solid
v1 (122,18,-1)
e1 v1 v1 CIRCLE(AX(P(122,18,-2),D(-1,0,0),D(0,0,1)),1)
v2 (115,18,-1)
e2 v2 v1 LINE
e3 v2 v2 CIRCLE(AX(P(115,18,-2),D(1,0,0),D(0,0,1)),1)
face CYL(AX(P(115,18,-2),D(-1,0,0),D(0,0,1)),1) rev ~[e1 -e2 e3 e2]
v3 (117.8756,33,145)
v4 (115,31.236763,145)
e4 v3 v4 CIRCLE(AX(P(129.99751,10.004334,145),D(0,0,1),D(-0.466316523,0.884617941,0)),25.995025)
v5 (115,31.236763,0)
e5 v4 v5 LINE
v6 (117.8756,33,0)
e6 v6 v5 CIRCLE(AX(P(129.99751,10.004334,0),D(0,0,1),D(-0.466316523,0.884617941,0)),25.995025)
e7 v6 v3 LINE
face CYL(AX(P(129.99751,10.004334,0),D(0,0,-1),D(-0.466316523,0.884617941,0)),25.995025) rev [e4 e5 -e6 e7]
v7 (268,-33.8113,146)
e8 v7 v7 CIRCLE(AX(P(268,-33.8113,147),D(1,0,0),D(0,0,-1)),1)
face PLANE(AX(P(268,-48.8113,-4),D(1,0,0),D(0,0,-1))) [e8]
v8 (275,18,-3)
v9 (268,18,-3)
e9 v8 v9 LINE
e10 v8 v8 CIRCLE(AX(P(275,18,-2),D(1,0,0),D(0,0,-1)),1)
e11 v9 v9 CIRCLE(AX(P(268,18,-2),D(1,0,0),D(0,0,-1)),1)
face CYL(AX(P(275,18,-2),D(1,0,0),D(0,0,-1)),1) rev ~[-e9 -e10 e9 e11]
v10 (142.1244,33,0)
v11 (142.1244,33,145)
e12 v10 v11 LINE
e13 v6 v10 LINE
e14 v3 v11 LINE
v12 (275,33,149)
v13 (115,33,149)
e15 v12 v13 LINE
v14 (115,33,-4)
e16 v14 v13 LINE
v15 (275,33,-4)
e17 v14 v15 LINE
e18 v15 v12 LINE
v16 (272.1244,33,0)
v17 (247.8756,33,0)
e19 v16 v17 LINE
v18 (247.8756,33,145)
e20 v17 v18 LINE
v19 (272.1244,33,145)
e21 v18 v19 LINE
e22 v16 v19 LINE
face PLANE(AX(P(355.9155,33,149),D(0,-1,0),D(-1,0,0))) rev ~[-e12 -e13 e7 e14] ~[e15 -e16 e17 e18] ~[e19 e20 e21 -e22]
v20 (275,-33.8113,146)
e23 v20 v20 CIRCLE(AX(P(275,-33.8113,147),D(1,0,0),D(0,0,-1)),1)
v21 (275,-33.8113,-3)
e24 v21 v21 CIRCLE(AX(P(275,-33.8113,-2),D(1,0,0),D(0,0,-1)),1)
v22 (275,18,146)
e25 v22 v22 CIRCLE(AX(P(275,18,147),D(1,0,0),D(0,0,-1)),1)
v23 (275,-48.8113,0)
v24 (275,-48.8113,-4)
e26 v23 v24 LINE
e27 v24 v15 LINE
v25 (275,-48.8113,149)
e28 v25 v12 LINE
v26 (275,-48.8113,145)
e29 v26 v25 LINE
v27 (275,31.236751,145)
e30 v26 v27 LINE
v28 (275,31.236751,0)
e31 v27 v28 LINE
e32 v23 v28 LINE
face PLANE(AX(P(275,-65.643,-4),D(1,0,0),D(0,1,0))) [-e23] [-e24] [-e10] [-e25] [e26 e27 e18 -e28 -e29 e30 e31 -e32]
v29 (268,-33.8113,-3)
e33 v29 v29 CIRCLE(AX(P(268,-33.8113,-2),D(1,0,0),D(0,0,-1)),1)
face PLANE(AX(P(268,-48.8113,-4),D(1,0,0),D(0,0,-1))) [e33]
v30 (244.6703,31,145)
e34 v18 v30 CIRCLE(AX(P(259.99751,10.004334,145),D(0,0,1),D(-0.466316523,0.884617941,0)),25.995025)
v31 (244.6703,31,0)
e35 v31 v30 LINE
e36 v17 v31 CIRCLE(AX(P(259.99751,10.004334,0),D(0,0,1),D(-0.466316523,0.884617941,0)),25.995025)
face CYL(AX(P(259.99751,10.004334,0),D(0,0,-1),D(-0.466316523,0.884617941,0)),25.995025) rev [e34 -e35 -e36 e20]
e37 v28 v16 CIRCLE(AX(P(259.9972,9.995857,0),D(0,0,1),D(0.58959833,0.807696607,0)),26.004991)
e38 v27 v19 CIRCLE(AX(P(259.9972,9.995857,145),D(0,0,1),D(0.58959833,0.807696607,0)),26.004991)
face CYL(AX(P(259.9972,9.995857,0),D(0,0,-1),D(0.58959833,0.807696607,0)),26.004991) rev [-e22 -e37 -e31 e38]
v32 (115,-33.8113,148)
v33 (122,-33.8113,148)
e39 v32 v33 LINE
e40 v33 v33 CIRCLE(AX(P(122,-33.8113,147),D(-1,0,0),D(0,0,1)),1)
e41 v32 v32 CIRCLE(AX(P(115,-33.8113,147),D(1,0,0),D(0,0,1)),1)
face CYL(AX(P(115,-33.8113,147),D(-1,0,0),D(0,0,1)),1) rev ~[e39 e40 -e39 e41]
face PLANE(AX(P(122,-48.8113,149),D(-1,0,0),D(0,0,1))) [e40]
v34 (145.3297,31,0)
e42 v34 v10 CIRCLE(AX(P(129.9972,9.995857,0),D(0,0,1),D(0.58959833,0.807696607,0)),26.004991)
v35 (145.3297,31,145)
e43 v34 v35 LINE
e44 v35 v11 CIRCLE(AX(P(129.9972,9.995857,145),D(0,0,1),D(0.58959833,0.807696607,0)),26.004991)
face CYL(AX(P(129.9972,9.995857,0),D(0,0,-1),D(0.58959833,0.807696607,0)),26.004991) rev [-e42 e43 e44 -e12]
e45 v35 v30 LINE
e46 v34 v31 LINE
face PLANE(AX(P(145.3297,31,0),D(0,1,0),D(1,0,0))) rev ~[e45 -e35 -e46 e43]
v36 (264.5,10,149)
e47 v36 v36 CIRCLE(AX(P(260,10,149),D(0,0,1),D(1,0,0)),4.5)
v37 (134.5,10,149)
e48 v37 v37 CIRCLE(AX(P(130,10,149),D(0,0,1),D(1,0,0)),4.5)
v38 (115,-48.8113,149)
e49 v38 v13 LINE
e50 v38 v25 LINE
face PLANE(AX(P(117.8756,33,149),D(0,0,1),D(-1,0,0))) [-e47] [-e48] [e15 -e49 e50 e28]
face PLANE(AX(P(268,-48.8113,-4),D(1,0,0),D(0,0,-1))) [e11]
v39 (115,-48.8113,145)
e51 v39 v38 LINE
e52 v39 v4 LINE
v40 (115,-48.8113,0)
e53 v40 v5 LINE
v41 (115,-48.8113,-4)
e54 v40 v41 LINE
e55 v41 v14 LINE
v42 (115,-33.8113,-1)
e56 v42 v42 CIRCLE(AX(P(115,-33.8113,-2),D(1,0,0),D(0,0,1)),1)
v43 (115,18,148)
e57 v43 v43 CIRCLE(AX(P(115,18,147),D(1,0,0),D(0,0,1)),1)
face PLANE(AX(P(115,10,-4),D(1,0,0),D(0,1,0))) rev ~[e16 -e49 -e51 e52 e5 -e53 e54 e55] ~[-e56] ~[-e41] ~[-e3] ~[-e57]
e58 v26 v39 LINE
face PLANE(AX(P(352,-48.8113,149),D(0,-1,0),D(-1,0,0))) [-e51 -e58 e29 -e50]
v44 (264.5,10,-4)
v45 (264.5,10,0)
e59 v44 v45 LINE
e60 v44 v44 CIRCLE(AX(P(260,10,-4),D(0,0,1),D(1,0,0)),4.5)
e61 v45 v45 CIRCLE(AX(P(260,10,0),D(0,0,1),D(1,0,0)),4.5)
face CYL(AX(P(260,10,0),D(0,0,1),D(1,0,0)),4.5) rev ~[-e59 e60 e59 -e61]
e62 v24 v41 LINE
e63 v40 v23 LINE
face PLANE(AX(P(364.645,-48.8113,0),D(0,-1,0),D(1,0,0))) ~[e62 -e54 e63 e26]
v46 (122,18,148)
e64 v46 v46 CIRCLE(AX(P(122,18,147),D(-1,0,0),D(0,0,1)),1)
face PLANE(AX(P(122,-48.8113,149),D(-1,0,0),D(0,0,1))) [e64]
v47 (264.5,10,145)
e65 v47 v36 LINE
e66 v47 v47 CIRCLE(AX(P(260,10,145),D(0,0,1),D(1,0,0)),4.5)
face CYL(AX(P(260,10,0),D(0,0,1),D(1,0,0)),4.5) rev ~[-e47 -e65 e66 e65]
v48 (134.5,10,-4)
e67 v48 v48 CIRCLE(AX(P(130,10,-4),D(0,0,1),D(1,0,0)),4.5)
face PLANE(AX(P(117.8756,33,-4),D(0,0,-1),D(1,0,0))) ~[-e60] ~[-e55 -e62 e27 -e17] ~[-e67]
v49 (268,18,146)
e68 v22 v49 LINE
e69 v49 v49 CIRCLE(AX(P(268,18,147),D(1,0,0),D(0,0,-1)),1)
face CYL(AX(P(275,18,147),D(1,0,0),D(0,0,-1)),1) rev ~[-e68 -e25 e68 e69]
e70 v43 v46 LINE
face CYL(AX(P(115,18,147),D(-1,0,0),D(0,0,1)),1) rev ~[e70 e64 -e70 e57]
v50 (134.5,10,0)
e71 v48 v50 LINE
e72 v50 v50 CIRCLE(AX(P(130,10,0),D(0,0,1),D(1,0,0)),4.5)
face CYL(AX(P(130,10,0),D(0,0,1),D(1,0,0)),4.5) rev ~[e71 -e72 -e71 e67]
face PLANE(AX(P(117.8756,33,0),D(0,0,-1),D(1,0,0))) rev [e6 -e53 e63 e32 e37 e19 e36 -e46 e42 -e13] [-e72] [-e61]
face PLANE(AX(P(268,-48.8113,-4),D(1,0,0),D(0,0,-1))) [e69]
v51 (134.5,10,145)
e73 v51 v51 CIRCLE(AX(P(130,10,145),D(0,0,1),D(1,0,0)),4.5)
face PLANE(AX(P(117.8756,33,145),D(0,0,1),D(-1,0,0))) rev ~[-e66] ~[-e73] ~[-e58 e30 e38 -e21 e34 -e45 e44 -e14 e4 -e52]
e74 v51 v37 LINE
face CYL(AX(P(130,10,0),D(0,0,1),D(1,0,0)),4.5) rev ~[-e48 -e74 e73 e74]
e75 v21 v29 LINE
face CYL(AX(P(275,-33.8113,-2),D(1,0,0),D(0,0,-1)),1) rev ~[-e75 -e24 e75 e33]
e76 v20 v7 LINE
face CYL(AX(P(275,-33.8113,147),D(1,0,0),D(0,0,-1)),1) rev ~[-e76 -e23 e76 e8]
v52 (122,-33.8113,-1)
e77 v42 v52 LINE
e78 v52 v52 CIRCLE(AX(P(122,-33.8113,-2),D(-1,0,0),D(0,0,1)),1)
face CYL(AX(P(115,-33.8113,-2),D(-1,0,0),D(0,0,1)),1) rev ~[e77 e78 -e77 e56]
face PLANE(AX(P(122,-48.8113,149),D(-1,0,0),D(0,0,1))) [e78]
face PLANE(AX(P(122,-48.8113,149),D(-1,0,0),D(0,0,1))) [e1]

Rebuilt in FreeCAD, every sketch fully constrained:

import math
import FreeCAD as App
import Part
import Sketcher
from FreeCAD import Vector
Q = App.Units.Quantity


def add_polygon(sketch, points):
    """Adds a closed chain of lines whose ends are joined by coincident constraints."""
    first, n = sketch.GeometryCount, len(points)
    for a, b in zip(points, points[1:] + points[:1]):
        sketch.addGeometry(Part.LineSegment(App.Vector(*a, 0), App.Vector(*b, 0)), False)
    for i in range(n):
        sketch.addConstraint(Sketcher.Constraint("Coincident", first + i, 2, first + (i + 1) % n, 1))

doc = App.newDocument("Part")
params = doc.addObject("Spreadsheet::Sheet", "Params")
for row, (alias, value) in enumerate([
    ("sketch1_height", "2 mm"),
    ("pad1_length", "145 mm"),
    ("sketch2_radius", "4.5 mm"),
    ("sketch2_height", "16.5 mm"),
    ("sketch2_width", "35.1 mm"),
    ("sketch2_height2", "18.5 mm"),
    ("pad2_length", "4 mm"),
    ("sketch3_diameter", "9 mm"),
    ("pocket1_length", "10000 mm"),
    ("pocket2_length", "1000 mm"),
    ("sketch5_radius", "14.5 mm"),
    ("sketch5_width", "35.1 mm"),
    ("pocket3_length", "17 mm"),
    ("sketch6_diameter", "9 mm"),
    ("pocket4_length", "17 mm"),
    ("sketch7_width", "2 mm"),
    ("pad3_length", "17 mm"),
    ("sketch8_diameter", "9 mm"),
    ("sketch8_radius", "14.5 mm"),
    ("sketch8_width", "2 mm"),
    ("sketch8_width2", "35.1 mm"),
    ("sketch8_height", "16.5 mm"),
    ("pad4_length", "4 mm"),
    ("sketch9_width", "10 mm"),
    ("sketch9_height", "29 mm"),
    ("pad5_length", "14.44 mm"),
    ("sketch10_width", "10 mm"),
    ("sketch10_height", "29 mm"),
    ("pad6_length", "14.44 mm"),
    ("sketch11_diameter", "5 mm"),
    ("pocket6_length", "682 mm"),
    ("sketch13_diameter", "2 mm"),
    ("pocket7_length", "7 mm"),
    ("sketch14_diameter", "2 mm"),
    ("pocket8_length", "7 mm"),
], start=1):
    params.set(f"A{row}", alias)
    params.set(f"B{row}", "=" + value)
    params.setAlias(f"B{row}", alias)

body = doc.addObject("PartDesign::Body", "Body")
body.AllowCompound = True

# Sketch on XY plane
sketch1 = body.newObject("Sketcher::SketchObject", "Sketch")
sketch1.AttachmentSupport = (doc.getObject("XY_Plane"), [""])
sketch1.MapMode = "FlatFace"
sketch1.addGeometry(Part.ArcOfCircle(Part.Circle(Vector(129.99751, 10.004334, 0), Vector(0, 0, 1), 25.995025), math.radians(117.795458), math.radians(126.13011)), False)
sketch1.addGeometry(Part.LineSegment(Vector(117.8756, 33, 0), Vector(31.8551, 33, 0)), False)
sketch1.addGeometry(Part.LineSegment(Vector(31.8551, 33, 0), Vector(31.8551, 31, 0)), False)
sketch1.addGeometry(Part.LineSegment(Vector(31.8551, 31, 0), Vector(114.6703, 31, 0)), False)
sketch1.addGeometry(Part.ArcOfCircle(Part.Circle(Vector(389.999447, 0.001169, 0), Vector(0, 0, 1), 35.99871), math.radians(113.556409), math.radians(120.558613)), False)
sketch1.addGeometry(Part.LineSegment(Vector(375.6125, 33, 0), Vector(272.1244, 33, 0)), False)
sketch1.addGeometry(Part.ArcOfCircle(Part.Circle(Vector(259.9972, 9.995857, 0), Vector(0, 0, 1), 26.004991), math.radians(53.87149), math.radians(62.202942)), False)
sketch1.addGeometry(Part.LineSegment(Vector(275.3297, 31, 0), Vector(371.697, 31, 0)), False)
sketch1.addGeometry(Part.ArcOfCircle(Part.Circle(Vector(259.99751, 10.004334, 0), Vector(0, 0, 1), 25.995025), math.radians(117.795458), math.radians(126.13011)), False)
sketch1.addGeometry(Part.LineSegment(Vector(247.8756, 33, 0), Vector(142.1244, 33, 0)), False)
sketch1.addGeometry(Part.ArcOfCircle(Part.Circle(Vector(129.9972, 9.995857, 0), Vector(0, 0, 1), 26.004991), math.radians(53.87149), math.radians(62.202942)), False)
sketch1.addGeometry(Part.LineSegment(Vector(145.3297, 31, 0), Vector(244.6703, 31, 0)), False)
sketch1.addConstraint(Sketcher.Constraint("Coincident", 0, 1, 1, 1))
sketch1.addConstraint(Sketcher.Constraint("Coincident", 1, 2, 2, 1))
sketch1.addConstraint(Sketcher.Constraint("Coincident", 2, 2, 3, 1))
sketch1.addConstraint(Sketcher.Constraint("Coincident", 3, 2, 0, 2))
sketch1.addConstraint(Sketcher.Constraint("Coincident", 4, 1, 5, 1))
sketch1.addConstraint(Sketcher.Constraint("Coincident", 5, 2, 6, 2))
sketch1.addConstraint(Sketcher.Constraint("Coincident", 6, 1, 7, 1))
sketch1.addConstraint(Sketcher.Constraint("Coincident", 7, 2, 4, 2))
sketch1.addConstraint(Sketcher.Constraint("Coincident", 8, 1, 9, 1))
sketch1.addConstraint(Sketcher.Constraint("Coincident", 9, 2, 10, 2))
sketch1.addConstraint(Sketcher.Constraint("Coincident", 10, 1, 11, 1))
sketch1.addConstraint(Sketcher.Constraint("Coincident", 11, 2, 8, 2))
sketch1.addConstraint(Sketcher.Constraint("Horizontal", 1))
sketch1.addConstraint(Sketcher.Constraint("Vertical", 2))
sketch1.addConstraint(Sketcher.Constraint("Horizontal", 3))
sketch1.addConstraint(Sketcher.Constraint("Horizontal", 5))
sketch1.addConstraint(Sketcher.Constraint("Horizontal", 7))
sketch1.addConstraint(Sketcher.Constraint("Horizontal", 9))
sketch1.addConstraint(Sketcher.Constraint("Horizontal", 11))
sketch1.addConstraint(Sketcher.Constraint("Equal", 0, 8))
sketch1.addConstraint(Sketcher.Constraint("Equal", 6, 10))
sketch1.addConstraint(Sketcher.Constraint("Horizontal", 0, 3, 8, 3))
sketch1.addConstraint(Sketcher.Constraint("Horizontal", 6, 3, 10, 3))
sketch1.addConstraint(Sketcher.Constraint("Horizontal", 1, 2, 4, 1))
sketch1.addConstraint(Sketcher.Constraint("Horizontal", 3, 2, 6, 1))
sketch1.addConstraint(Sketcher.Constraint("Horizontal", 5, 2, 8, 1))
sketch1.addConstraint(Sketcher.Constraint("Horizontal", 7, 2, 10, 1))
sketch1.addConstraint(Sketcher.Constraint("DistanceY", 2, 2, 2, 1, Q("2 mm")))
sketch1.addConstraint(Sketcher.Constraint("DistanceX", 0, 3, 8, 3, Q("130 mm")))
sketch1.addConstraint(Sketcher.Constraint("DistanceX", 10, 3, 6, 3, Q("130 mm")))
sketch1.addConstraint(Sketcher.Constraint("DistanceY", -1, 1, 0, 1, Q("33 mm")))
sketch1.addConstraint(Sketcher.Constraint("Radius", 0, Q("25.995 mm")))
sketch1.addConstraint(Sketcher.Constraint("Radius", 6, Q("26.005 mm")))
sketch1.addConstraint(Sketcher.Constraint("DistanceX", -1, 1, 4, 3, Q("389.9994 mm")))
sketch1.addConstraint(Sketcher.Constraint("Radius", 4, Q("35.9987 mm")))
sketch1.addConstraint(Sketcher.Constraint("DistanceX", 0, 3, 6, 3, Q("129.9997 mm")))
sketch1.addConstraint(Sketcher.Constraint("DistanceX", 5, 2, 5, 1, Q("103.488 mm")))
sketch1.addConstraint(Sketcher.Constraint("DistanceX", 1, 2, 1, 1, Q("86.0205 mm")))
sketch1.addConstraint(Sketcher.Constraint("DistanceX", 3, 1, 3, 2, Q("82.8152 mm")))
sketch1.addConstraint(Sketcher.Constraint("DistanceX", 7, 1, 7, 2, Q("96.3673 mm")))
sketch1.addConstraint(Sketcher.Constraint("DistanceX", 9, 2, 9, 1, Q("105.7512 mm")))
sketch1.setExpression("Constraints[27]", "Params.sketch1_height")
pad1 = body.newObject("PartDesign::Pad", "Pad")
pad1.Profile = sketch1
pad1.setExpression("Length", "Params.pad1_length")

# Sketch on XY plane
sketch2 = body.newObject("Sketcher::SketchObject", "Sketch001")
sketch2.AttachmentSupport = (doc.getObject("XY_Plane"), [""])
sketch2.MapMode = "FlatFace"
sketch2.AttachmentOffset = App.Placement(Vector(0, 0, 145), App.Rotation())
sketch2.addGeometry(Part.LineSegment(Vector(31.8551, 14.5, 0), Vector(-15.8903, 14.5, 0)), False)
sketch2.addGeometry(Part.ArcOfCircle(Part.Circle(Vector(-15.8903, 0, 0), Vector(0, 0, 1), 14.5), math.radians(90), math.radians(270)), False)
sketch2.addGeometry(Part.LineSegment(Vector(-15.8903, -14.5, 0), Vector(19.2097, -14.5, 0)), False)
sketch2.addGeometry(Part.LineSegment(Vector(19.2097, -14.5, 0), Vector(19.2097, -48.8113, 0)), False)
sketch2.addGeometry(Part.LineSegment(Vector(19.2097, -48.8113, 0), Vector(364.645, -48.8113, 0)), False)
sketch2.addGeometry(Part.LineSegment(Vector(364.645, -48.8113, 0), Vector(364.645, -14.5, 0)), False)
sketch2.addGeometry(Part.LineSegment(Vector(364.645, -14.5, 0), Vector(399.745, -14.5, 0)), False)
sketch2.addGeometry(Part.ArcOfCircle(Part.Circle(Vector(399.745, 0, 0), Vector(0, 0, 1), 14.5), math.radians(-90), math.radians(90)), False)
sketch2.addGeometry(Part.LineSegment(Vector(399.745, 14.5, 0), Vector(352, 14.5, 0)), False)
sketch2.addGeometry(Part.LineSegment(Vector(352, 14.5, 0), Vector(352, 31, 0)), False)
sketch2.addGeometry(Part.LineSegment(Vector(352, 31, 0), Vector(355.9155, 33, 0)), False)
sketch2.addGeometry(Part.LineSegment(Vector(355.9155, 33, 0), Vector(31.8551, 33, 0)), False)
sketch2.addGeometry(Part.LineSegment(Vector(31.8551, 33, 0), Vector(31.8551, 14.5, 0)), False)
sketch2.addGeometry(Part.LineSegment(Vector(19.2097, -4.5, 0), Vector(-15.8903, -4.5, 0)), False)
sketch2.addGeometry(Part.ArcOfCircle(Part.Circle(Vector(-15.8903, 0, 0), Vector(0, 0, 1), 4.5), math.radians(90), math.radians(270)), False)
sketch2.addGeometry(Part.LineSegment(Vector(-15.8903, 4.5, 0), Vector(19.2097, 4.5, 0)), False)
sketch2.addGeometry(Part.ArcOfCircle(Part.Circle(Vector(19.2097, 0, 0), Vector(0, 0, 1), 4.5), math.radians(-90), math.radians(90)), False)
sketch2.addConstraint(Sketcher.Constraint("Tangent", 0, 2, 1, 1))
sketch2.addConstraint(Sketcher.Constraint("Tangent", 1, 2, 2, 1))
sketch2.addConstraint(Sketcher.Constraint("Coincident", 2, 2, 3, 1))
sketch2.addConstraint(Sketcher.Constraint("Coincident", 3, 2, 4, 1))
sketch2.addConstraint(Sketcher.Constraint("Coincident", 4, 2, 5, 1))
sketch2.addConstraint(Sketcher.Constraint("Coincident", 5, 2, 6, 1))
sketch2.addConstraint(Sketcher.Constraint("Tangent", 6, 2, 7, 1))
sketch2.addConstraint(Sketcher.Constraint("Tangent", 7, 2, 8, 1))
sketch2.addConstraint(Sketcher.Constraint("Coincident", 8, 2, 9, 1))
sketch2.addConstraint(Sketcher.Constraint("Coincident", 9, 2, 10, 1))
sketch2.addConstraint(Sketcher.Constraint("Coincident", 10, 2, 11, 1))
sketch2.addConstraint(Sketcher.Constraint("Coincident", 11, 2, 12, 1))
sketch2.addConstraint(Sketcher.Constraint("Coincident", 12, 2, 0, 1))
sketch2.addConstraint(Sketcher.Constraint("Tangent", 13, 2, 14, 2))
sketch2.addConstraint(Sketcher.Constraint("Tangent", 14, 1, 15, 1))
sketch2.addConstraint(Sketcher.Constraint("Tangent", 15, 2, 16, 2))
sketch2.addConstraint(Sketcher.Constraint("Tangent", 16, 1, 13, 1))
sketch2.addConstraint(Sketcher.Constraint("Horizontal", 0))
sketch2.addConstraint(Sketcher.Constraint("Horizontal", 2))
sketch2.addConstraint(Sketcher.Constraint("Vertical", 3))
sketch2.addConstraint(Sketcher.Constraint("Horizontal", 4))
sketch2.addConstraint(Sketcher.Constraint("Vertical", 5))
sketch2.addConstraint(Sketcher.Constraint("Horizontal", 6))
sketch2.addConstraint(Sketcher.Constraint("Horizontal", 8))
sketch2.addConstraint(Sketcher.Constraint("Vertical", 9))
sketch2.addConstraint(Sketcher.Constraint("Horizontal", 11))
sketch2.addConstraint(Sketcher.Constraint("Vertical", 12))
sketch2.addConstraint(Sketcher.Constraint("Horizontal", 13))
sketch2.addConstraint(Sketcher.Constraint("Horizontal", 15))
sketch2.addConstraint(Sketcher.Constraint("Coincident", 14, 3, 1, 3))
sketch2.addConstraint(Sketcher.Constraint("Equal", 1, 7))
sketch2.addConstraint(Sketcher.Constraint("PointOnObject", 1, 3, -1))
sketch2.addConstraint(Sketcher.Constraint("PointOnObject", 7, 3, -1))
sketch2.addConstraint(Sketcher.Constraint("Vertical", 16, 3, 2, 2))
sketch2.addConstraint(Sketcher.Constraint("Equal", 2, 6))
sketch2.addConstraint(Sketcher.Constraint("Radius", 14, Q("4.5 mm")))
sketch2.addConstraint(Sketcher.Constraint("DistanceY", 9, 1, 9, 2, Q("16.5 mm")))
sketch2.addConstraint(Sketcher.Constraint("DistanceY", 1, 2, 13, 2, Q("10 mm")))
sketch2.addConstraint(Sketcher.Constraint("DistanceX", 8, 2, 8, 1, Q("47.745 mm")))
sketch2.addConstraint(Sketcher.Constraint("DistanceX", 0, 2, 0, 1, Q("47.7454 mm")))
sketch2.addConstraint(Sketcher.Constraint("DistanceX", 2, 1, 2, 2, Q("35.1 mm")))
sketch2.addConstraint(Sketcher.Constraint("DistanceY", 12, 2, 12, 1, Q("18.5 mm")))
sketch2.addConstraint(Sketcher.Constraint("DistanceX", -1, 1, 8, 2, Q("352 mm")))
sketch2.addConstraint(Sketcher.Constraint("DistanceX", 4, 1, 4, 2, Q("345.4353 mm")))
sketch2.addConstraint(Sketcher.Constraint("DistanceX", 11, 2, 11, 1, Q("324.0604 mm")))
sketch2.addConstraint(Sketcher.Constraint("DistanceY", 3, 2, 3, 1, Q("34.3113 mm")))
sketch2.setExpression("Constraints[35]", "Params.sketch2_radius")
sketch2.setExpression("Constraints[36]", "Params.sketch2_height")
sketch2.setExpression("Constraints[40]", "Params.sketch2_width")
sketch2.setExpression("Constraints[41]", "Params.sketch2_height2")
pad2 = body.newObject("PartDesign::Pad", "Pad001")
pad2.Profile = sketch2
pad2.setExpression("Length", "Params.pad2_length")
doc.recompute()

datumplane = body.newObject("PartDesign::Plane", "DatumPlane")
datumplane.AttachmentSupport = (doc.getObject("XY_Plane"), [""])
datumplane.MapMode = "FlatFace"
datumplane.AttachmentOffset = App.Placement(Vector(0, 0, 72.5), App.Rotation())
mirrored = body.newObject("PartDesign::Mirrored", "Mirrored")
mirrored.Originals = [pad2]
mirrored.MirrorPlane = (datumplane, [""])
body.Tip = mirrored

# Sketch on XY plane
sketch3 = body.newObject("Sketcher::SketchObject", "Sketch002")
sketch3.AttachmentSupport = (doc.getObject("XY_Plane"), [""])
sketch3.MapMode = "FlatFace"
sketch3.addGeometry(Part.Circle(Vector(130, 10, 0), Vector(0, 0, 1), 4.5), False)
sketch3.addGeometry(Part.Circle(Vector(260, 10, 0), Vector(0, 0, 1), 4.5), False)
sketch3.addConstraint(Sketcher.Constraint("Equal", 0, 1))
sketch3.addConstraint(Sketcher.Constraint("Horizontal", 0, 3, 1, 3))
sketch3.addConstraint(Sketcher.Constraint("Diameter", 0, Q("9 mm")))
sketch3.addConstraint(Sketcher.Constraint("DistanceX", -1, 1, 0, 3, Q("130 mm")))
sketch3.addConstraint(Sketcher.Constraint("DistanceX", -1, 1, 1, 3, Q("260 mm")))
sketch3.addConstraint(Sketcher.Constraint("DistanceY", -1, 1, 0, 3, Q("10 mm")))
sketch3.setExpression("Constraints[2]", "Params.sketch3_diameter")
pocket1 = body.newObject("PartDesign::Pocket", "Pocket")
pocket1.Profile = sketch3
pocket1.setExpression("Length", "Params.pocket1_length")
pocket1.Midplane = True

# Sketch on XY plane
sketch4 = body.newObject("Sketcher::SketchObject", "Sketch003")
sketch4.AttachmentSupport = (doc.getObject("XY_Plane"), [""])
sketch4.MapMode = "FlatFace"
sketch4.AttachmentOffset = App.Placement(Vector(0, 0, 145), App.Rotation())
sketch4.addGeometry(Part.LineSegment(Vector(355.9155, 33, 0), Vector(352, 31, 0)), False)
sketch4.addGeometry(Part.LineSegment(Vector(352, 31, 0), Vector(371.697, 31, 0)), False)
sketch4.addGeometry(Part.ArcOfCircle(Part.Circle(Vector(389.999447, 0.001169, 0), Vector(0, 0, 1), 35.99871), math.radians(113.556409), math.radians(120.558613)), False)
sketch4.addGeometry(Part.LineSegment(Vector(375.6125, 33, 0), Vector(355.9155, 33, 0)), False)
sketch4.addConstraint(Sketcher.Constraint("Coincident", 0, 2, 1, 1))
sketch4.addConstraint(Sketcher.Constraint("Coincident", 1, 2, 2, 2))
sketch4.addConstraint(Sketcher.Constraint("Coincident", 2, 1, 3, 1))
sketch4.addConstraint(Sketcher.Constraint("Coincident", 3, 2, 0, 1))
sketch4.addConstraint(Sketcher.Constraint("Horizontal", 1))
sketch4.addConstraint(Sketcher.Constraint("Horizontal", 3))
sketch4.addConstraint(Sketcher.Constraint("Equal", 1, 3))
sketch4.addConstraint(Sketcher.Constraint("DistanceX", -1, 1, 0, 2, Q("352 mm")))
sketch4.addConstraint(Sketcher.Constraint("DistanceY", -1, 1, 0, 2, Q("31 mm")))
sketch4.addConstraint(Sketcher.Constraint("DistanceY", -1, 1, 2, 1, Q("33 mm")))
sketch4.addConstraint(Sketcher.Constraint("Radius", 2, Q("35.9987 mm")))
sketch4.addConstraint(Sketcher.Constraint("DistanceX", 1, 1, 1, 2, Q("19.697 mm")))
sketch4.addConstraint(Sketcher.Constraint("DistanceX", 2, 1, 2, 3, Q("14.387 mm")))
pocket2 = body.newObject("PartDesign::Pocket", "Pocket001")
pocket2.Profile = sketch4
pocket2.setExpression("Length", "Params.pocket2_length")
pocket2.Midplane = True

# Sketch on XY plane
sketch5 = body.newObject("Sketcher::SketchObject", "Sketch004")
sketch5.AttachmentSupport = (doc.getObject("XY_Plane"), [""])
sketch5.MapMode = "FlatFace"
sketch5.AttachmentOffset = App.Placement(Vector(0, 0, 149), App.Rotation())
sketch5.addGeometry(Part.ArcOfCircle(Part.Circle(Vector(399.745, 0, 0), Vector(0, 0, 1), 14.5), math.radians(-90), math.radians(90)), False)
sketch5.addGeometry(Part.LineSegment(Vector(399.745, 14.5, 0), Vector(352, 14.5, 0)), False)
sketch5.addGeometry(Part.LineSegment(Vector(352, 14.5, 0), Vector(352, -48.8113, 0)), False)
sketch5.addGeometry(Part.LineSegment(Vector(352, -48.8113, 0), Vector(364.645, -48.8113, 0)), False)
sketch5.addGeometry(Part.LineSegment(Vector(364.645, -48.8113, 0), Vector(364.645, -14.5, 0)), False)
sketch5.addGeometry(Part.LineSegment(Vector(364.645, -14.5, 0), Vector(399.745, -14.5, 0)), False)
sketch5.addConstraint(Sketcher.Constraint("Tangent", 0, 2, 1, 1))
sketch5.addConstraint(Sketcher.Constraint("Coincident", 1, 2, 2, 1))
sketch5.addConstraint(Sketcher.Constraint("Coincident", 2, 2, 3, 1))
sketch5.addConstraint(Sketcher.Constraint("Coincident", 3, 2, 4, 1))
sketch5.addConstraint(Sketcher.Constraint("Coincident", 4, 2, 5, 1))
sketch5.addConstraint(Sketcher.Constraint("Tangent", 5, 2, 0, 1))
sketch5.addConstraint(Sketcher.Constraint("Horizontal", 1))
sketch5.addConstraint(Sketcher.Constraint("Vertical", 2))
sketch5.addConstraint(Sketcher.Constraint("Horizontal", 3))
sketch5.addConstraint(Sketcher.Constraint("Vertical", 4))
sketch5.addConstraint(Sketcher.Constraint("Horizontal", 5))
sketch5.addConstraint(Sketcher.Constraint("PointOnObject", 0, 3, -1))
sketch5.addConstraint(Sketcher.Constraint("Radius", 0, Q("14.5 mm")))
sketch5.addConstraint(Sketcher.Constraint("DistanceX", 5, 1, 5, 2, Q("35.1 mm")))
sketch5.addConstraint(Sketcher.Constraint("DistanceX", -1, 1, 1, 2, Q("352 mm")))
sketch5.addConstraint(Sketcher.Constraint("DistanceX", 1, 2, 1, 1, Q("47.745 mm")))
sketch5.addConstraint(Sketcher.Constraint("DistanceY", 2, 2, 2, 1, Q("63.3113 mm")))
sketch5.setExpression("Constraints[12]", "Params.sketch5_radius")
sketch5.setExpression("Constraints[13]", "Params.sketch5_width")
pocket3 = body.newObject("PartDesign::Pocket", "Pocket002")
pocket3.Profile = sketch5
pocket3.setExpression("Length", "Params.pocket3_length")

# Sketch on XY plane
sketch6 = body.newObject("Sketcher::SketchObject", "Sketch005")
sketch6.AttachmentSupport = (doc.getObject("XY_Plane"), [""])
sketch6.MapMode = "FlatFace"
sketch6.addGeometry(Part.Circle(Vector(390, 0, 0), Vector(0, 0, 1), 4.5), False)
sketch6.addConstraint(Sketcher.Constraint("PointOnObject", 0, 3, -1))
sketch6.addConstraint(Sketcher.Constraint("Diameter", 0, Q("9 mm")))
sketch6.addConstraint(Sketcher.Constraint("DistanceX", -1, 1, 0, 3, Q("390 mm")))
sketch6.setExpression("Constraints[1]", "Params.sketch6_diameter")
pocket4 = body.newObject("PartDesign::Pocket", "Pocket003")
pocket4.Profile = sketch6
pocket4.setExpression("Length", "Params.pocket4_length")

# Sketch on XY plane
sketch7 = body.newObject("Sketcher::SketchObject", "Sketch006")
sketch7.AttachmentSupport = (doc.getObject("XY_Plane"), [""])
sketch7.MapMode = "FlatFace"
sketch7.AttachmentOffset = App.Placement(Vector(0, 0, 149), App.Rotation())
add_polygon(sketch7, [(350, -48.8113), (352, -48.8113), (352, 31), (355.9155, 33), (353.9155, 33), (350, 31)])  # lines 0-5
sketch7.addConstraint(Sketcher.Constraint("Horizontal", 0))
sketch7.addConstraint(Sketcher.Constraint("Vertical", 1))
sketch7.addConstraint(Sketcher.Constraint("Horizontal", 3))
sketch7.addConstraint(Sketcher.Constraint("Vertical", 5))
sketch7.addConstraint(Sketcher.Constraint("Parallel", 2, 4))
sketch7.addConstraint(Sketcher.Constraint("Horizontal", 1, 2, 4, 2))
sketch7.addConstraint(Sketcher.Constraint("DistanceX", 0, 1, 0, 2, Q("2 mm")))
sketch7.addConstraint(Sketcher.Constraint("DistanceY", 1, 2, 2, 2, Q("2 mm")))
sketch7.addConstraint(Sketcher.Constraint("DistanceX", -1, 1, 0, 2, Q("352 mm")))
sketch7.addConstraint(Sketcher.Constraint("DistanceY", -1, 1, 1, 2, Q("31 mm")))
sketch7.addConstraint(Sketcher.Constraint("DistanceY", 1, 1, 1, 2, Q("79.8113 mm")))
sketch7.addConstraint(Sketcher.Constraint("Distance", 2, Q("4.3967 mm")))
sketch7.setExpression("Constraints[12]", "Params.sketch7_width")
pad3 = body.newObject("PartDesign::Pad", "Pad002")
pad3.Profile = sketch7
pad3.setExpression("Length", "Params.pad3_length")

# Sketch on XY plane
sketch8 = body.newObject("Sketcher::SketchObject", "Sketch007")
sketch8.AttachmentSupport = (doc.getObject("XY_Plane"), [""])
sketch8.MapMode = "FlatFace"
sketch8.AttachmentOffset = App.Placement(Vector(0, 0, 166), App.Rotation())
sketch8.addGeometry(Part.LineSegment(Vector(350, 31, 0), Vector(350, -48.8113, 0)), False)
sketch8.addGeometry(Part.LineSegment(Vector(350, -48.8113, 0), Vector(364.645, -48.8113, 0)), False)
sketch8.addGeometry(Part.LineSegment(Vector(364.645, -48.8113, 0), Vector(364.645, -14.5, 0)), False)
sketch8.addGeometry(Part.LineSegment(Vector(364.645, -14.5, 0), Vector(399.745, -14.5, 0)), False)
sketch8.addGeometry(Part.ArcOfCircle(Part.Circle(Vector(399.745, 0, 0), Vector(0, 0, 1), 14.5), math.radians(-90), math.radians(90)), False)
sketch8.addGeometry(Part.LineSegment(Vector(399.745, 14.5, 0), Vector(352, 14.5, 0)), False)
sketch8.addGeometry(Part.LineSegment(Vector(352, 14.5, 0), Vector(352, 31, 0)), False)
sketch8.addGeometry(Part.LineSegment(Vector(352, 31, 0), Vector(355.9155, 33, 0)), False)
sketch8.addGeometry(Part.LineSegment(Vector(355.9155, 33, 0), Vector(353.9155, 33, 0)), False)
sketch8.addGeometry(Part.LineSegment(Vector(353.9155, 33, 0), Vector(350, 31, 0)), False)
sketch8.addGeometry(Part.Circle(Vector(390, 0, 0), Vector(0, 0, 1), 4.5), False)
sketch8.addConstraint(Sketcher.Constraint("Coincident", 0, 2, 1, 1))
sketch8.addConstraint(Sketcher.Constraint("Coincident", 1, 2, 2, 1))
sketch8.addConstraint(Sketcher.Constraint("Coincident", 2, 2, 3, 1))
sketch8.addConstraint(Sketcher.Constraint("Tangent", 3, 2, 4, 1))
sketch8.addConstraint(Sketcher.Constraint("Tangent", 4, 2, 5, 1))
sketch8.addConstraint(Sketcher.Constraint("Coincident", 5, 2, 6, 1))
sketch8.addConstraint(Sketcher.Constraint("Coincident", 6, 2, 7, 1))
sketch8.addConstraint(Sketcher.Constraint("Coincident", 7, 2, 8, 1))
sketch8.addConstraint(Sketcher.Constraint("Coincident", 8, 2, 9, 1))
sketch8.addConstraint(Sketcher.Constraint("Coincident", 9, 2, 0, 1))
sketch8.addConstraint(Sketcher.Constraint("Vertical", 0))
sketch8.addConstraint(Sketcher.Constraint("Horizontal", 1))
sketch8.addConstraint(Sketcher.Constraint("Vertical", 2))
sketch8.addConstraint(Sketcher.Constraint("Horizontal", 3))
sketch8.addConstraint(Sketcher.Constraint("Horizontal", 5))
sketch8.addConstraint(Sketcher.Constraint("Vertical", 6))
sketch8.addConstraint(Sketcher.Constraint("Horizontal", 8))
sketch8.addConstraint(Sketcher.Constraint("PointOnObject", 4, 3, -1))
sketch8.addConstraint(Sketcher.Constraint("PointOnObject", 10, 3, -1))
sketch8.addConstraint(Sketcher.Constraint("Parallel", 7, 9))
sketch8.addConstraint(Sketcher.Constraint("Horizontal", 6, 2, 9, 2))
sketch8.addConstraint(Sketcher.Constraint("Diameter", 10, Q("9 mm")))
sketch8.addConstraint(Sketcher.Constraint("Radius", 4, Q("14.5 mm")))
sketch8.addConstraint(Sketcher.Constraint("DistanceX", 8, 2, 8, 1, Q("2 mm")))
sketch8.addConstraint(Sketcher.Constraint("DistanceX", 3, 1, 3, 2, Q("35.1 mm")))
sketch8.addConstraint(Sketcher.Constraint("DistanceY", 6, 1, 6, 2, Q("16.5 mm")))
sketch8.addConstraint(Sketcher.Constraint("DistanceX", -1, 1, 10, 3, Q("390 mm")))
sketch8.addConstraint(Sketcher.Constraint("DistanceX", -1, 1, 0, 2, Q("350 mm")))
sketch8.addConstraint(Sketcher.Constraint("DistanceY", -1, 1, 7, 2, Q("33 mm")))
sketch8.addConstraint(Sketcher.Constraint("DistanceX", 1, 1, 1, 2, Q("14.645 mm")))
sketch8.addConstraint(Sketcher.Constraint("DistanceY", 0, 2, 0, 1, Q("79.8113 mm")))
sketch8.addConstraint(Sketcher.Constraint("Distance", 7, Q("4.3967 mm")))
sketch8.setExpression("Constraints[21]", "Params.sketch8_diameter")
sketch8.setExpression("Constraints[22]", "Params.sketch8_radius")
sketch8.setExpression("Constraints[23]", "Params.sketch8_width")
sketch8.setExpression("Constraints[24]", "Params.sketch8_width2")
sketch8.setExpression("Constraints[25]", "Params.sketch8_height")
pad4 = body.newObject("PartDesign::Pad", "Pad003")
pad4.Profile = sketch8
pad4.setExpression("Length", "Params.pad4_length")

# Sketch on XY plane
sketch9 = body.newObject("Sketcher::SketchObject", "Sketch008")
sketch9.AttachmentSupport = (doc.getObject("XY_Plane"), [""])
sketch9.MapMode = "FlatFace"
sketch9.AttachmentOffset = App.Placement(Vector(0, 0, -4), App.Rotation())
add_polygon(sketch9, [(31.8551, -14.5), (31.8551, 14.5), (41.8551, 14.5), (41.8551, -14.5)])  # lines 0-3
sketch9.addConstraint(Sketcher.Constraint("Vertical", 0))
sketch9.addConstraint(Sketcher.Constraint("Horizontal", 1))
sketch9.addConstraint(Sketcher.Constraint("Vertical", 2))
sketch9.addConstraint(Sketcher.Constraint("Horizontal", 3))
sketch9.addConstraint(Sketcher.Constraint("DistanceX", 1, 1, 1, 2, Q("10 mm")))
sketch9.addConstraint(Sketcher.Constraint("DistanceY", 0, 1, 0, 2, Q("29 mm")))
sketch9.addConstraint(Sketcher.Constraint("DistanceY", -1, 1, 0, 2, Q("14.5 mm")))
sketch9.addConstraint(Sketcher.Constraint("DistanceX", -1, 1, 0, 2, Q("31.855 mm")))
sketch9.setExpression("Constraints[8]", "Params.sketch9_width")
sketch9.setExpression("Constraints[9]", "Params.sketch9_height")
pad5 = body.newObject("PartDesign::Pad", "Pad004")
pad5.Profile = sketch9
pad5.setExpression("Length", "Params.pad5_length")
pad5.Reversed = True

# Sketch on XY plane
sketch10 = body.newObject("Sketcher::SketchObject", "Sketch009")
sketch10.AttachmentSupport = (doc.getObject("XY_Plane"), [""])
sketch10.MapMode = "FlatFace"
sketch10.AttachmentOffset = App.Placement(Vector(0, 0, 149), App.Rotation())
add_polygon(sketch10, [(31.8551, 14.5), (31.8551, -14.5), (41.8551, -14.5), (41.8551, 14.5)])  # lines 0-3
sketch10.addConstraint(Sketcher.Constraint("Vertical", 0))
sketch10.addConstraint(Sketcher.Constraint("Horizontal", 1))
sketch10.addConstraint(Sketcher.Constraint("Vertical", 2))
sketch10.addConstraint(Sketcher.Constraint("Horizontal", 3))
sketch10.addConstraint(Sketcher.Constraint("DistanceX", 1, 1, 1, 2, Q("10 mm")))
sketch10.addConstraint(Sketcher.Constraint("DistanceY", 0, 2, 0, 1, Q("29 mm")))
sketch10.addConstraint(Sketcher.Constraint("DistanceY", 0, 2, -1, 1, Q("14.5 mm")))
sketch10.addConstraint(Sketcher.Constraint("DistanceX", -1, 1, 0, 2, Q("31.855 mm")))
sketch10.setExpression("Constraints[8]", "Params.sketch10_width")
sketch10.setExpression("Constraints[9]", "Params.sketch10_height")
pad6 = body.newObject("PartDesign::Pad", "Pad005")
pad6.Profile = sketch10
pad6.setExpression("Length", "Params.pad6_length")

# Sketch on YZ plane
sketch11 = body.newObject("Sketcher::SketchObject", "Sketch010")
sketch11.AttachmentSupport = (doc.getObject("YZ_Plane"), [""])
sketch11.MapMode = "FlatFace"
sketch11.AttachmentOffset = App.Placement(Vector(0, 0, 31.8551), App.Rotation())
sketch11.addGeometry(Part.Circle(Vector(0, -12.44, 0), Vector(0, 0, 1), 2.5), False)
sketch11.addConstraint(Sketcher.Constraint("PointOnObject", 0, 3, -2))
sketch11.addConstraint(Sketcher.Constraint("Diameter", 0, Q("5 mm")))
sketch11.addConstraint(Sketcher.Constraint("DistanceY", 0, 3, -1, 1, Q("12.44 mm")))
sketch11.setExpression("Constraints[1]", "Params.sketch11_diameter")
pocket5 = body.newObject("PartDesign::Pocket", "Pocket004")
pocket5.Profile = sketch11
pocket5.Type = "ThroughAll"
pocket5.Reversed = True
doc.recompute()

datumplane2 = body.newObject("PartDesign::Plane", "DatumPlane001")
datumplane2.AttachmentSupport = (doc.getObject("XY_Plane"), [""])
datumplane2.MapMode = "FlatFace"
datumplane2.AttachmentOffset = App.Placement(Vector(0, 0, 72.5), App.Rotation())
mirrored2 = body.newObject("PartDesign::Mirrored", "Mirrored001")
mirrored2.Originals = [pocket5]
mirrored2.MirrorPlane = (datumplane2, [""])
body.Tip = mirrored2

# Sketch on XY plane
sketch12 = body.newObject("Sketcher::SketchObject", "Sketch011")
sketch12.AttachmentSupport = (doc.getObject("XY_Plane"), [""])
sketch12.MapMode = "FlatFace"
sketch12.AttachmentOffset = App.Placement(Vector(0, 0, -4), App.Rotation())
add_polygon(sketch12, [(115, 52.486), (115, -77.3526), (-73.7711, -77.3526), (-73.7711, 52.486)])  # lines 0-3
add_polygon(sketch12, [(275, -65.643), (275, 52.486), (450.0605, 52.486), (450.0605, -65.643)])  # lines 4-7
sketch12.addConstraint(Sketcher.Constraint("Vertical", 0))
sketch12.addConstraint(Sketcher.Constraint("Horizontal", 1))
sketch12.addConstraint(Sketcher.Constraint("Vertical", 2))
sketch12.addConstraint(Sketcher.Constraint("Horizontal", 3))
sketch12.addConstraint(Sketcher.Constraint("Vertical", 4))
sketch12.addConstraint(Sketcher.Constraint("Horizontal", 5))
sketch12.addConstraint(Sketcher.Constraint("Vertical", 6))
sketch12.addConstraint(Sketcher.Constraint("Horizontal", 7))
sketch12.addConstraint(Sketcher.Constraint("Horizontal", 3, 2, 4, 2))
sketch12.addConstraint(Sketcher.Constraint("DistanceX", -1, 1, 0, 2, Q("115 mm")))
sketch12.addConstraint(Sketcher.Constraint("DistanceX", -1, 1, 4, 2, Q("275 mm")))
sketch12.addConstraint(Sketcher.Constraint("DistanceX", 1, 2, 1, 1, Q("188.771 mm")))
sketch12.addConstraint(Sketcher.Constraint("DistanceY", 4, 1, 4, 2, Q("118.129 mm")))
sketch12.addConstraint(Sketcher.Constraint("DistanceX", 5, 1, 5, 2, Q("175.0605 mm")))
sketch12.addConstraint(Sketcher.Constraint("DistanceY", 0, 2, 0, 1, Q("129.8386 mm")))
sketch12.addConstraint(Sketcher.Constraint("DistanceY", -1, 1, 2, 2, Q("52.486 mm")))
pocket6 = body.newObject("PartDesign::Pocket", "Pocket005")
pocket6.Profile = sketch12
pocket6.setExpression("Length", "Params.pocket6_length")
pocket6.Midplane = True

# Sketch on YZ plane
sketch13 = body.newObject("Sketcher::SketchObject", "Sketch012")
sketch13.AttachmentSupport = (doc.getObject("YZ_Plane"), [""])
sketch13.MapMode = "FlatFace"
sketch13.AttachmentOffset = App.Placement(Vector(0, 0, 115), App.Rotation())
sketch13.addGeometry(Part.Circle(Vector(-33.8113, 147, 0), Vector(0, 0, 1), 1), False)
sketch13.addGeometry(Part.Circle(Vector(18, 147, 0), Vector(0, 0, 1), 1), False)
sketch13.addGeometry(Part.Circle(Vector(18, -2, 0), Vector(0, 0, 1), 1), False)
sketch13.addGeometry(Part.Circle(Vector(-33.8113, -2, 0), Vector(0, 0, 1), 1), False)
sketch13.addConstraint(Sketcher.Constraint("Equal", 0, 1))
sketch13.addConstraint(Sketcher.Constraint("Equal", 1, 2))
sketch13.addConstraint(Sketcher.Constraint("Equal", 2, 3))
sketch13.addConstraint(Sketcher.Constraint("Horizontal", 0, 3, 1, 3))
sketch13.addConstraint(Sketcher.Constraint("Horizontal", 2, 3, 3, 3))
sketch13.addConstraint(Sketcher.Constraint("Vertical", 1, 3, 2, 3))
sketch13.addConstraint(Sketcher.Constraint("Vertical", 0, 3, 3, 3))
sketch13.addConstraint(Sketcher.Constraint("Diameter", 0, Q("2 mm")))
sketch13.addConstraint(Sketcher.Constraint("DistanceY", 2, 3, -1, 1, Q("2 mm")))
sketch13.addConstraint(Sketcher.Constraint("DistanceY", -1, 1, 0, 3, Q("147 mm")))
sketch13.addConstraint(Sketcher.Constraint("DistanceX", -1, 1, 1, 3, Q("18 mm")))
sketch13.addConstraint(Sketcher.Constraint("DistanceX", 0, 3, -1, 1, Q("33.8113 mm")))
sketch13.setExpression("Constraints[7]", "Params.sketch13_diameter")
pocket7 = body.newObject("PartDesign::Pocket", "Pocket006")
pocket7.Profile = sketch13
pocket7.setExpression("Length", "Params.pocket7_length")
pocket7.Reversed = True

# Sketch on YZ plane
sketch14 = body.newObject("Sketcher::SketchObject", "Sketch013")
sketch14.AttachmentSupport = (doc.getObject("YZ_Plane"), [""])
sketch14.MapMode = "FlatFace"
sketch14.AttachmentOffset = App.Placement(Vector(0, 0, 275), App.Rotation())
sketch14.addGeometry(Part.Circle(Vector(18, 147, 0), Vector(0, 0, 1), 1), False)
sketch14.addGeometry(Part.Circle(Vector(-33.8113, 147, 0), Vector(0, 0, 1), 1), False)
sketch14.addGeometry(Part.Circle(Vector(18, -2, 0), Vector(0, 0, 1), 1), False)
sketch14.addGeometry(Part.Circle(Vector(-33.8113, -2, 0), Vector(0, 0, 1), 1), False)
sketch14.addConstraint(Sketcher.Constraint("Equal", 0, 1))
sketch14.addConstraint(Sketcher.Constraint("Equal", 1, 2))
sketch14.addConstraint(Sketcher.Constraint("Equal", 2, 3))
sketch14.addConstraint(Sketcher.Constraint("Horizontal", 0, 3, 1, 3))
sketch14.addConstraint(Sketcher.Constraint("Horizontal", 2, 3, 3, 3))
sketch14.addConstraint(Sketcher.Constraint("Vertical", 0, 3, 2, 3))
sketch14.addConstraint(Sketcher.Constraint("Vertical", 1, 3, 3, 3))
sketch14.addConstraint(Sketcher.Constraint("Diameter", 0, Q("2 mm")))
sketch14.addConstraint(Sketcher.Constraint("DistanceX", -1, 1, 0, 3, Q("18 mm")))
sketch14.addConstraint(Sketcher.Constraint("DistanceY", -1, 1, 0, 3, Q("147 mm")))
sketch14.addConstraint(Sketcher.Constraint("DistanceY", 2, 3, -1, 1, Q("2 mm")))
sketch14.addConstraint(Sketcher.Constraint("DistanceX", 1, 3, -1, 1, Q("33.8113 mm")))
sketch14.setExpression("Constraints[7]", "Params.sketch14_diameter")
pocket8 = body.newObject("PartDesign::Pocket", "Pocket007")
pocket8.Profile = sketch14
pocket8.setExpression("Length", "Params.pocket8_length")

doc.recompute()
